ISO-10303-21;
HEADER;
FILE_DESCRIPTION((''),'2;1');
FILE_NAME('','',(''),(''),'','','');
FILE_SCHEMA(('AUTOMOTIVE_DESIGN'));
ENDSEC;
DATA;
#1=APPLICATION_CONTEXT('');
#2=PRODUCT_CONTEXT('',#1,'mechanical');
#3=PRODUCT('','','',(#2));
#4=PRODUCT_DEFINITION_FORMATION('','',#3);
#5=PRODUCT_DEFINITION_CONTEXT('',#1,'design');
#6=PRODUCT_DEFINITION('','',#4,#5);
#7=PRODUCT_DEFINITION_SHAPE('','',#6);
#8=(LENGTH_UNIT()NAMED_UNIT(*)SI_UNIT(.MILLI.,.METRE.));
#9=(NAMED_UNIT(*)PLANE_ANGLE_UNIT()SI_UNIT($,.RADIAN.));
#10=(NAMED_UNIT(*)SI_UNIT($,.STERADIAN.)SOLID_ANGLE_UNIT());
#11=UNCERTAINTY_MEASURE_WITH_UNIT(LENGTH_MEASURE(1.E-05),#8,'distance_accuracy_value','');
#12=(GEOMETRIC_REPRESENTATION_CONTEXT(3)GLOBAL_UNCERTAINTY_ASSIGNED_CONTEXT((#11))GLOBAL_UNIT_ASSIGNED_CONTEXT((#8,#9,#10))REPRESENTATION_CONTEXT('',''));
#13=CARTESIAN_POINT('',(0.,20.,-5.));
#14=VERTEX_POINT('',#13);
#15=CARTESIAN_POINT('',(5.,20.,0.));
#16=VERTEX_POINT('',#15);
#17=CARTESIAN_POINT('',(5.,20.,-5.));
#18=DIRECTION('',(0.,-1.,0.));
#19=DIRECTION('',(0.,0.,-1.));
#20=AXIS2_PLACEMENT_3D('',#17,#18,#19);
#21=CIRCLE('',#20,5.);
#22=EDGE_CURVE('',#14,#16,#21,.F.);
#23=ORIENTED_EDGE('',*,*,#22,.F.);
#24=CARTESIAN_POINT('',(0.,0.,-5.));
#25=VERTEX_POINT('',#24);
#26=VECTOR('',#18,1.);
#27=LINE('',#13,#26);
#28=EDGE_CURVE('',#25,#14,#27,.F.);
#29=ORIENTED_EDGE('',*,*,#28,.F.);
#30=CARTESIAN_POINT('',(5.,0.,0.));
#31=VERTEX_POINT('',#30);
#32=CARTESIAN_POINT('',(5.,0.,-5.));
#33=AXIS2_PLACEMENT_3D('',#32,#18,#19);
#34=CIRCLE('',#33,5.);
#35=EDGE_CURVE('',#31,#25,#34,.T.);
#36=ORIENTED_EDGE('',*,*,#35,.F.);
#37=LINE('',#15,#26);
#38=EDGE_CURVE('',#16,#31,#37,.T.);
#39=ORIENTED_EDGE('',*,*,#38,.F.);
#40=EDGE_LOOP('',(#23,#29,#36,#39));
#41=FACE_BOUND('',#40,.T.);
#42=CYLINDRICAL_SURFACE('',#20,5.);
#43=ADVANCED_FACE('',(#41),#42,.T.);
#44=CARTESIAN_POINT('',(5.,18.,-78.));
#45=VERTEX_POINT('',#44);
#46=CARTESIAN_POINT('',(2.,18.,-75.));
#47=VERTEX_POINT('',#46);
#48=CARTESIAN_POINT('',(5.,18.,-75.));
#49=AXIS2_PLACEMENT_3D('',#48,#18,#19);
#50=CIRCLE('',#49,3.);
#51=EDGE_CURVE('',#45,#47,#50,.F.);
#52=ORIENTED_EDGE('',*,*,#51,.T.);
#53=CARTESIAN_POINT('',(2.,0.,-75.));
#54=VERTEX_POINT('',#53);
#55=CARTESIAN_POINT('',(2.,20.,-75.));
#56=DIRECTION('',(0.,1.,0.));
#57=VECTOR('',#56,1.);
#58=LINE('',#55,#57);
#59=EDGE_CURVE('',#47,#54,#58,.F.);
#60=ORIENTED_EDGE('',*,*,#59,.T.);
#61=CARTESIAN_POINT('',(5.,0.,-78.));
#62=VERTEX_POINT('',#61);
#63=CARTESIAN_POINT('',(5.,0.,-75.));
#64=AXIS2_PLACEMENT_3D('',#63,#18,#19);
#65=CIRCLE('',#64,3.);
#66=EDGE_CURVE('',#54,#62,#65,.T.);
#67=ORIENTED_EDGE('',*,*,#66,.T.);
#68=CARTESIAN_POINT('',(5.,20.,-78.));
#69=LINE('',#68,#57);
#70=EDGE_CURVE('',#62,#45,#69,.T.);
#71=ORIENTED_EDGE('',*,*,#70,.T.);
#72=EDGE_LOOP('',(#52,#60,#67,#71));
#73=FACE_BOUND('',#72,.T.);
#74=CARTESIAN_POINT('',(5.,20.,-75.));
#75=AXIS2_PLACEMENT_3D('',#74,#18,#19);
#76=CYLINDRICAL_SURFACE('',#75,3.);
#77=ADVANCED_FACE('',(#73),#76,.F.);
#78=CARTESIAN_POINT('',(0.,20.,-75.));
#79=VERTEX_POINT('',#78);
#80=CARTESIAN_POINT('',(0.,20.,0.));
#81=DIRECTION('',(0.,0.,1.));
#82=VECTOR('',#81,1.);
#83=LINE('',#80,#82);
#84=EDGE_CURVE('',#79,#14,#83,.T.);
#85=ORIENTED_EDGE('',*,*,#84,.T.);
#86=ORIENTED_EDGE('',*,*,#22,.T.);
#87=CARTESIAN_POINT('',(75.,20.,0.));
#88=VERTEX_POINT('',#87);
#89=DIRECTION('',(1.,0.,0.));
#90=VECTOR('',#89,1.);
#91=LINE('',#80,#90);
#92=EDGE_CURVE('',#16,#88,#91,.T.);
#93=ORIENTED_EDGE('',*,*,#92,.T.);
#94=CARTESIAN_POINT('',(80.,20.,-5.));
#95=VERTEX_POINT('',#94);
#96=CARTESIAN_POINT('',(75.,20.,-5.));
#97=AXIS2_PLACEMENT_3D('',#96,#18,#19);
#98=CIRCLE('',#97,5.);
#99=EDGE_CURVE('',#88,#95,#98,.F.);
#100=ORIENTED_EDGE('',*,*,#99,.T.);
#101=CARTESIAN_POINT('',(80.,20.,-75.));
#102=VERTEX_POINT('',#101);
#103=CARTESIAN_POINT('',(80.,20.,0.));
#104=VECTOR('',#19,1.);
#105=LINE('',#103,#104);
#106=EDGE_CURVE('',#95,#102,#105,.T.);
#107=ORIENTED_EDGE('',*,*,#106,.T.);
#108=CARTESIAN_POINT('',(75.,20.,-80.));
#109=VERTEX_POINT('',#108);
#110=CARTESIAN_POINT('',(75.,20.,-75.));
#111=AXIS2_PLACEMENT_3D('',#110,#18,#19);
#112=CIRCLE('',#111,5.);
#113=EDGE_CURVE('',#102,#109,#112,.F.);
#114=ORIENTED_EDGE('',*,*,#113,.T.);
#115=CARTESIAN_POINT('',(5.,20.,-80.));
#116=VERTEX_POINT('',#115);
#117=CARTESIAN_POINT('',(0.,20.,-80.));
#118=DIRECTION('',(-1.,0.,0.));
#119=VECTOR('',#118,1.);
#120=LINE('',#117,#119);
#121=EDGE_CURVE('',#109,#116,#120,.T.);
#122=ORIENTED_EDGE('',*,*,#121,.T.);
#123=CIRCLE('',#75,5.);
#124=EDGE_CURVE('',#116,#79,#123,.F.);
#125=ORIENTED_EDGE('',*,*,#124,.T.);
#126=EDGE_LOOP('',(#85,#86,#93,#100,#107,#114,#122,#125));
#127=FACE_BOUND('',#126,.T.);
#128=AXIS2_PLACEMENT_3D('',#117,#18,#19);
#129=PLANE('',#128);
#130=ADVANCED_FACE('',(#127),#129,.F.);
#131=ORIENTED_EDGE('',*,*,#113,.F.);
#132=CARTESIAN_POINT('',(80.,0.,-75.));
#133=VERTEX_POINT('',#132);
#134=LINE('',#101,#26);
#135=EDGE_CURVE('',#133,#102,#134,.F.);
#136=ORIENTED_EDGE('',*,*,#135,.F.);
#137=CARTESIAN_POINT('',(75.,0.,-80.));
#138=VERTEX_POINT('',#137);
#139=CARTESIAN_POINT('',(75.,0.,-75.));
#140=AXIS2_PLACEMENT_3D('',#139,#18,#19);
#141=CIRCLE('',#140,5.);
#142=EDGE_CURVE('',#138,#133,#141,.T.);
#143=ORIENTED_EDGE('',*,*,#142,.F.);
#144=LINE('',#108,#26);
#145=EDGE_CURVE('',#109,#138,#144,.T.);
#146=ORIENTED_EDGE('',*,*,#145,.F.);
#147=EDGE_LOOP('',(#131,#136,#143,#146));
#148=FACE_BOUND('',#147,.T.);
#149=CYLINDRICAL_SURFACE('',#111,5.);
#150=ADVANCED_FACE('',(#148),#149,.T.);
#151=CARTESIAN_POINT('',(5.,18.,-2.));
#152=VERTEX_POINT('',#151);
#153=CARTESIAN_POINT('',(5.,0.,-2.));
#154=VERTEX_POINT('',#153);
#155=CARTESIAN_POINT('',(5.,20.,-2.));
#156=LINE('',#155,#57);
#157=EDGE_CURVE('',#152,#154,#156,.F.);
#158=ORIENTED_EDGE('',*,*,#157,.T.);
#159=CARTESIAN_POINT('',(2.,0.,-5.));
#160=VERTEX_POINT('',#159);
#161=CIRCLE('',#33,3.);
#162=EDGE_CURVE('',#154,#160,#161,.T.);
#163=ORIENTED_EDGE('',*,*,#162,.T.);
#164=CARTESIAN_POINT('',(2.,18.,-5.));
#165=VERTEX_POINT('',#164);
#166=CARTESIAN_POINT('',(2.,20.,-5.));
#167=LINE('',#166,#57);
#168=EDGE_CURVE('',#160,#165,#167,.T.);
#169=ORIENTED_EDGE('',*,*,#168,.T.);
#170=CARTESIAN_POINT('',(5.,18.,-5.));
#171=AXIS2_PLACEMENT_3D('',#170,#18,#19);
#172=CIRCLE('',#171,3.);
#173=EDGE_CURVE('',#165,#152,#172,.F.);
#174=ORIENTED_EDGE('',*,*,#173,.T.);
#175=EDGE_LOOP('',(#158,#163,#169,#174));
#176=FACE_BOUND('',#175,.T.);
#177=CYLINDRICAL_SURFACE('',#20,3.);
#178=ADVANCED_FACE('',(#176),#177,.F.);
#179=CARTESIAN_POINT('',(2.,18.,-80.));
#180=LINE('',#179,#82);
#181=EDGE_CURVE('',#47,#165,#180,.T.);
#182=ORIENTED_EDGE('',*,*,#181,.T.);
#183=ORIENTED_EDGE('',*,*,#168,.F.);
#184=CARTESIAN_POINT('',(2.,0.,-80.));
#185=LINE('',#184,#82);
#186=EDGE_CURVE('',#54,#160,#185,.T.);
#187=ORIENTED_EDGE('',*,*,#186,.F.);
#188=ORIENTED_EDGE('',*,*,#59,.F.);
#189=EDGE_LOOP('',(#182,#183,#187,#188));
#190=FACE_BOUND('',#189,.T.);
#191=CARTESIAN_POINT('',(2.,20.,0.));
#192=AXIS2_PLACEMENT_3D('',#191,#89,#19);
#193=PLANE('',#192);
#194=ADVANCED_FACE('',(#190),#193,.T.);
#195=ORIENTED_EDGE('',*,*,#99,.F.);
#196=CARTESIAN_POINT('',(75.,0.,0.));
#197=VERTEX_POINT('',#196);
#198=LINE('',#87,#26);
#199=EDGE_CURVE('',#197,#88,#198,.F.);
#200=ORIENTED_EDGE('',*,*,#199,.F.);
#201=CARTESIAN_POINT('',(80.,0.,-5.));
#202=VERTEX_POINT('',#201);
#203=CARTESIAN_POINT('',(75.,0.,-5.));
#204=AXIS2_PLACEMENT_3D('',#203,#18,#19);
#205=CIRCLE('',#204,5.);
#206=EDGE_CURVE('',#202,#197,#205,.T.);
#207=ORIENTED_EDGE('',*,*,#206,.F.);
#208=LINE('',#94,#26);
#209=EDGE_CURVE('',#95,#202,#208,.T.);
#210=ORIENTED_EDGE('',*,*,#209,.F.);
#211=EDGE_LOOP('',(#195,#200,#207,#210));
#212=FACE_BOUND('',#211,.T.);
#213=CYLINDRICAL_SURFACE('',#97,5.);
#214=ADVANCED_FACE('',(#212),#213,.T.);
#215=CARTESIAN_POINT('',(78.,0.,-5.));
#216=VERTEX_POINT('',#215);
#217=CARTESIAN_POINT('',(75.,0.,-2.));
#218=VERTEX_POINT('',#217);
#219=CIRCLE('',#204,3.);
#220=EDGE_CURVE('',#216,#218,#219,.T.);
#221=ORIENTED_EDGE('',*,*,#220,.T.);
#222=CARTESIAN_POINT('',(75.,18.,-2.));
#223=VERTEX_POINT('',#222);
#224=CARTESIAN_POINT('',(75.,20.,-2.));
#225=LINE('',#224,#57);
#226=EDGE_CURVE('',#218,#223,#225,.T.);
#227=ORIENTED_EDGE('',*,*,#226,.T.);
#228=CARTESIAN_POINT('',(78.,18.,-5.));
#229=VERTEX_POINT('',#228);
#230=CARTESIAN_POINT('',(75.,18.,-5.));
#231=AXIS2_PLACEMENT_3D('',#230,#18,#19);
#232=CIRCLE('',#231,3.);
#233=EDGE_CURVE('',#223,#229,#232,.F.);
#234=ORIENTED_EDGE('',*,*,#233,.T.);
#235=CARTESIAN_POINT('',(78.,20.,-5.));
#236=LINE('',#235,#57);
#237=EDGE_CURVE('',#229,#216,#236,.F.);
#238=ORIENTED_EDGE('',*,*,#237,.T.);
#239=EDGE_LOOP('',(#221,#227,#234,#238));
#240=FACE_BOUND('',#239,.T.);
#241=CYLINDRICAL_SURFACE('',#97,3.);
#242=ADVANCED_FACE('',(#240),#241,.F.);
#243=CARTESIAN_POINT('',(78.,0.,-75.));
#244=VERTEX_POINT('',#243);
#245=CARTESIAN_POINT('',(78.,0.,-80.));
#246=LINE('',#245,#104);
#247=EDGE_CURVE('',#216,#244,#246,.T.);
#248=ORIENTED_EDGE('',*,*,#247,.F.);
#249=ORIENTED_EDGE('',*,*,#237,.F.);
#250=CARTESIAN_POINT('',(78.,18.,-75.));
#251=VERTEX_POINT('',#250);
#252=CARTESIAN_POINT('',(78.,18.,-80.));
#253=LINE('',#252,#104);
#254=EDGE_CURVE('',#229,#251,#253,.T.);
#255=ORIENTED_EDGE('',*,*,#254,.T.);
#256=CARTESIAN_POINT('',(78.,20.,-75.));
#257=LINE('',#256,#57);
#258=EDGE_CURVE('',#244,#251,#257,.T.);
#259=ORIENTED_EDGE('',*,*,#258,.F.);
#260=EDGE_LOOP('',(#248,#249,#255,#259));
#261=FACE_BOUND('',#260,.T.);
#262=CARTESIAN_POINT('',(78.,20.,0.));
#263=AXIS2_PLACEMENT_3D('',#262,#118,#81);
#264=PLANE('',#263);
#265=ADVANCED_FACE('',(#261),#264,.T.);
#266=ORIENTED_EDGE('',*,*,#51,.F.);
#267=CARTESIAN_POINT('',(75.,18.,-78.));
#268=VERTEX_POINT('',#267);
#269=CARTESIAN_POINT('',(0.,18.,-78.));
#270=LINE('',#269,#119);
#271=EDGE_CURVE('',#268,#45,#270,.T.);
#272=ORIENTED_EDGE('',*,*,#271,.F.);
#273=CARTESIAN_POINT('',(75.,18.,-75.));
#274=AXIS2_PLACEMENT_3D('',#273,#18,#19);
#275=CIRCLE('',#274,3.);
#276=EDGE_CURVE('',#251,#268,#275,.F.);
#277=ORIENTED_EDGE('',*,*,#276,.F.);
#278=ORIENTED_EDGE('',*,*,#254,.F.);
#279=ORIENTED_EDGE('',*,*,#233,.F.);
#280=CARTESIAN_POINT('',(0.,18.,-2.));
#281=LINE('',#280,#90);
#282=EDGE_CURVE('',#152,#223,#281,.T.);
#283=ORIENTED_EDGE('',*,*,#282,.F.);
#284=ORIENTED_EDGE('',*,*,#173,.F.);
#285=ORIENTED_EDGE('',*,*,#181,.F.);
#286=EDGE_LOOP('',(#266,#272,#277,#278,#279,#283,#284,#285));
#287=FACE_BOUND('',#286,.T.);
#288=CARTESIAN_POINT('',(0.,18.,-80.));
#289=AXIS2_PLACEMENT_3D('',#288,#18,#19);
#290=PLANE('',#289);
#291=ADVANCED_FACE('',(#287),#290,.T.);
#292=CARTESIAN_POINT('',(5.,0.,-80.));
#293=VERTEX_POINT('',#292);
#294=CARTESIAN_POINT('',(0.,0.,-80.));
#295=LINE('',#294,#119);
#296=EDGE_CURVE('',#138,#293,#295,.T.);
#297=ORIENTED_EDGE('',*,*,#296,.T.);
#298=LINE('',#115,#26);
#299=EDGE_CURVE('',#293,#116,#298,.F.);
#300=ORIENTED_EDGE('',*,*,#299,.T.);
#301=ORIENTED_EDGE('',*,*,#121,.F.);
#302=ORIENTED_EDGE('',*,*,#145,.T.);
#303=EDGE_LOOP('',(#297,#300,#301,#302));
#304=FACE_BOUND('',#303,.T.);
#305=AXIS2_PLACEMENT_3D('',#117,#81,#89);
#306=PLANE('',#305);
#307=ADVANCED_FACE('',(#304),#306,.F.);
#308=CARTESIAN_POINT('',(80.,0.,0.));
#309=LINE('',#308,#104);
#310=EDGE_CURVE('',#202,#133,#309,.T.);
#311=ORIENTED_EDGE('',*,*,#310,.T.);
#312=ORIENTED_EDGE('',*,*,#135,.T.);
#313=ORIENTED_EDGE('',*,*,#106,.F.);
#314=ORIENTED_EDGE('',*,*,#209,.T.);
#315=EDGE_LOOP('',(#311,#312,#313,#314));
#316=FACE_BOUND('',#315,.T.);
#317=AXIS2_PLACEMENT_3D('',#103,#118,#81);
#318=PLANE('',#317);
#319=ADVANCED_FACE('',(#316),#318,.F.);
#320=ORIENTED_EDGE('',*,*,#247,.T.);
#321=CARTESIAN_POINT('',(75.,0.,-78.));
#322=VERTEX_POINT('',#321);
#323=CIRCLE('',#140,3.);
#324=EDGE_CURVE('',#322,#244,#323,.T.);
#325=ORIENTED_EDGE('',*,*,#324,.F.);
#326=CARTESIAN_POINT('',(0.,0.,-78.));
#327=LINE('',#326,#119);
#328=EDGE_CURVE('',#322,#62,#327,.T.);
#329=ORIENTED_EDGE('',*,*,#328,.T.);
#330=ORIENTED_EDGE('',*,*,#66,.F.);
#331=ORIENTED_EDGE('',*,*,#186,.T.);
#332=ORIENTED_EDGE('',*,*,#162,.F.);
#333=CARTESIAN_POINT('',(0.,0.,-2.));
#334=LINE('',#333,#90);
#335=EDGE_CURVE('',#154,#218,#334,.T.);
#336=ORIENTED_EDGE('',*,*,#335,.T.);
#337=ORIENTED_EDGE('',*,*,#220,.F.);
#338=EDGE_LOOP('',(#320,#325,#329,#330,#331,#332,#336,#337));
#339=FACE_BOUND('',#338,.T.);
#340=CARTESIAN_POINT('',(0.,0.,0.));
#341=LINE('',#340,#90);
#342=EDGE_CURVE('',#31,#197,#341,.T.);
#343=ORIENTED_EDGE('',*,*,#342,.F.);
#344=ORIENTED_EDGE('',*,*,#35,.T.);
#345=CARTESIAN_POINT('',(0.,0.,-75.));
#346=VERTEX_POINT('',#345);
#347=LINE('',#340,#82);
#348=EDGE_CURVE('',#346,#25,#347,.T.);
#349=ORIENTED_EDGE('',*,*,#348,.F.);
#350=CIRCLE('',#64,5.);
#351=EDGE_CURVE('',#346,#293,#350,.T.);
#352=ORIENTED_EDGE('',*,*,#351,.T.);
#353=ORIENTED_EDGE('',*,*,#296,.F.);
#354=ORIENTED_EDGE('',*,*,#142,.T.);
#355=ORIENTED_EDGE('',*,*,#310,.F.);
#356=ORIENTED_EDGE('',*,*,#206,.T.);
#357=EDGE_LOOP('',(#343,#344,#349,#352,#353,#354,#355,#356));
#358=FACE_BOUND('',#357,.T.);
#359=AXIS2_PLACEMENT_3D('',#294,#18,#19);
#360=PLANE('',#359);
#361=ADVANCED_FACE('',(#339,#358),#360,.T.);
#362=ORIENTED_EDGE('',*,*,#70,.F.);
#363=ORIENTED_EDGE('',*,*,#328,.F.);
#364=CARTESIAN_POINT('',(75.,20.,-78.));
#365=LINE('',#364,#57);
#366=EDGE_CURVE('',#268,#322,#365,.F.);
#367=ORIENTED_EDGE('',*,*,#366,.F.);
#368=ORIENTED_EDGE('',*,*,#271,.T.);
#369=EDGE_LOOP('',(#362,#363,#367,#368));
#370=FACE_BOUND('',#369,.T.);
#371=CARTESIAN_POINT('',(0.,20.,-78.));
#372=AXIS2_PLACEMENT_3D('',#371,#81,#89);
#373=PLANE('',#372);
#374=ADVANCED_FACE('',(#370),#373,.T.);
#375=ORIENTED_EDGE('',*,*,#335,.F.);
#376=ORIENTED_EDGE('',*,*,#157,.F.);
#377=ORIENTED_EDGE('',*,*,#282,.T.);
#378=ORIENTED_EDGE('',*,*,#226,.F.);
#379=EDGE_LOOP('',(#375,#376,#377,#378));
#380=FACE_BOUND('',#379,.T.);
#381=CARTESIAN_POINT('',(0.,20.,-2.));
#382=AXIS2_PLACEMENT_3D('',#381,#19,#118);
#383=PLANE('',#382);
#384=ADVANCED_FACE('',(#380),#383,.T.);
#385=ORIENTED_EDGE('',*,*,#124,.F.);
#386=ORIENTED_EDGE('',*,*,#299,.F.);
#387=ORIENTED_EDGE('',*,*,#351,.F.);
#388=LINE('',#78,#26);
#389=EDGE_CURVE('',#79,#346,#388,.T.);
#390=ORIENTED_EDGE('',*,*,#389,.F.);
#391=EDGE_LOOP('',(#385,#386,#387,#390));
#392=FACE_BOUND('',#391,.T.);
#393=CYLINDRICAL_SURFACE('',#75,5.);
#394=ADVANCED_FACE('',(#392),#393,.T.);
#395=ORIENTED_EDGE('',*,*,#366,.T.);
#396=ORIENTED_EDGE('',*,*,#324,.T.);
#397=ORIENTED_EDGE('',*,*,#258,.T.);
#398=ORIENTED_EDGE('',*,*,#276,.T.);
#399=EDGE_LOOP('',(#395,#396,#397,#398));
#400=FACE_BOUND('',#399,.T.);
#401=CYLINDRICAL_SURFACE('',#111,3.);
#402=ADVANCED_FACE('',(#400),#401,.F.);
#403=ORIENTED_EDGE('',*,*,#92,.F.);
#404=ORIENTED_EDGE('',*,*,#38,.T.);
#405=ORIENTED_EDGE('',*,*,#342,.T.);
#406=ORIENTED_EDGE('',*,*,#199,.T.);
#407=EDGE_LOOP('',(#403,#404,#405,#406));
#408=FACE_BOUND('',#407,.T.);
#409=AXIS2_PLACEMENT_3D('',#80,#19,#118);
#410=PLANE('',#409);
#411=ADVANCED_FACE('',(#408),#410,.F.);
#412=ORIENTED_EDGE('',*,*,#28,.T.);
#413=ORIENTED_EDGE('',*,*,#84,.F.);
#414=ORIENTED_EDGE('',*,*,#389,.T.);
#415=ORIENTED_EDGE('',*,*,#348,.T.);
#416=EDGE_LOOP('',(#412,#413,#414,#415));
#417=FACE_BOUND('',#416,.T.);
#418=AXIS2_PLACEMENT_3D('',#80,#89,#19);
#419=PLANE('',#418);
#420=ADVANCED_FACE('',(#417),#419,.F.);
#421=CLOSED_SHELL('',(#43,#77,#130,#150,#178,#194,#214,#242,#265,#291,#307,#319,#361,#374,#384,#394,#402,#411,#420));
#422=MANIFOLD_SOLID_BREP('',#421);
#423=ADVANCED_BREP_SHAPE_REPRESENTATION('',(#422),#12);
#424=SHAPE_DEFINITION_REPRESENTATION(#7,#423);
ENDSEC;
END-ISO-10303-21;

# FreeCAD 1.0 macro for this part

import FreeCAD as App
import Part
import Sketcher
Q = App.Units.Quantity


def edges_at(feature, points):
    """Names of the edges that pass closest to the given points."""
    edges = feature.Shape.Edges
    near = lambda p: min(range(len(edges)), key=lambda i: edges[i].distToShape(Part.Vertex(*p))[0])
    return sorted({f"Edge{near(p) + 1}" for p in points})


def faces_at(feature, points):
    """Names of the faces that lie closest to the given points."""
    faces = feature.Shape.Faces
    near = lambda p: min(range(len(faces)), key=lambda i: faces[i].distToShape(Part.Vertex(*p))[0])
    return sorted({f"Face{near(p) + 1}" for p in points})


def add_polygon(sketch, points):
    """Adds a closed chain of lines whose ends are joined by coincident constraints."""
    first, n = sketch.GeometryCount, len(points)
    for a, b in zip(points, points[1:] + points[:1]):
        sketch.addGeometry(Part.LineSegment(App.Vector(*a, 0), App.Vector(*b, 0)), False)
    for i in range(n):
        sketch.addConstraint(Sketcher.Constraint("Coincident", first + i, 2, first + (i + 1) % n, 1))

doc = App.newDocument("Part")
body = doc.addObject("PartDesign::Body", "Body")

sketch1 = body.newObject("Sketcher::SketchObject", "Sketch")
sketch1.AttachmentSupport = (doc.getObject("XZ_Plane"), [""])
sketch1.MapMode = "FlatFace"
add_polygon(sketch1, [(0, -80), (0, 0), (80, 0), (80, -80)])
sketch1.addConstraint([
    Sketcher.Constraint("Vertical", 0),
    Sketcher.Constraint("Horizontal", 1),
    Sketcher.Constraint("Vertical", 2),
    Sketcher.Constraint("Horizontal", 3),
    Sketcher.Constraint("Coincident", 0, 2, -1, 1),
    Sketcher.Constraint("Equal", 3, 0),
    Sketcher.Constraint("DistanceX", 1, 1, 1, 2, Q("80 mm")),
])
pad1 = body.newObject("PartDesign::Pad", "Pad")
pad1.Profile = sketch1
pad1.Length = 20
pad1.Reversed = True
doc.recompute()

fillet = body.newObject("PartDesign::Fillet", "Fillet")
fillet.Base = (pad1, edges_at(pad1, [
    (0, 10, -80),
    (80, 10, -80),
    (80, 10, 0),
    (0, 10, 0),
]))
fillet.Radius = 5
doc.recompute()

thickness = body.newObject("PartDesign::Thickness", "Thickness")
thickness.Base = (fillet, faces_at(fillet, [(40, 0, -40)]))
thickness.Value = 2
thickness.Reversed = True
thickness.Join = "Intersection"

doc.recompute()
